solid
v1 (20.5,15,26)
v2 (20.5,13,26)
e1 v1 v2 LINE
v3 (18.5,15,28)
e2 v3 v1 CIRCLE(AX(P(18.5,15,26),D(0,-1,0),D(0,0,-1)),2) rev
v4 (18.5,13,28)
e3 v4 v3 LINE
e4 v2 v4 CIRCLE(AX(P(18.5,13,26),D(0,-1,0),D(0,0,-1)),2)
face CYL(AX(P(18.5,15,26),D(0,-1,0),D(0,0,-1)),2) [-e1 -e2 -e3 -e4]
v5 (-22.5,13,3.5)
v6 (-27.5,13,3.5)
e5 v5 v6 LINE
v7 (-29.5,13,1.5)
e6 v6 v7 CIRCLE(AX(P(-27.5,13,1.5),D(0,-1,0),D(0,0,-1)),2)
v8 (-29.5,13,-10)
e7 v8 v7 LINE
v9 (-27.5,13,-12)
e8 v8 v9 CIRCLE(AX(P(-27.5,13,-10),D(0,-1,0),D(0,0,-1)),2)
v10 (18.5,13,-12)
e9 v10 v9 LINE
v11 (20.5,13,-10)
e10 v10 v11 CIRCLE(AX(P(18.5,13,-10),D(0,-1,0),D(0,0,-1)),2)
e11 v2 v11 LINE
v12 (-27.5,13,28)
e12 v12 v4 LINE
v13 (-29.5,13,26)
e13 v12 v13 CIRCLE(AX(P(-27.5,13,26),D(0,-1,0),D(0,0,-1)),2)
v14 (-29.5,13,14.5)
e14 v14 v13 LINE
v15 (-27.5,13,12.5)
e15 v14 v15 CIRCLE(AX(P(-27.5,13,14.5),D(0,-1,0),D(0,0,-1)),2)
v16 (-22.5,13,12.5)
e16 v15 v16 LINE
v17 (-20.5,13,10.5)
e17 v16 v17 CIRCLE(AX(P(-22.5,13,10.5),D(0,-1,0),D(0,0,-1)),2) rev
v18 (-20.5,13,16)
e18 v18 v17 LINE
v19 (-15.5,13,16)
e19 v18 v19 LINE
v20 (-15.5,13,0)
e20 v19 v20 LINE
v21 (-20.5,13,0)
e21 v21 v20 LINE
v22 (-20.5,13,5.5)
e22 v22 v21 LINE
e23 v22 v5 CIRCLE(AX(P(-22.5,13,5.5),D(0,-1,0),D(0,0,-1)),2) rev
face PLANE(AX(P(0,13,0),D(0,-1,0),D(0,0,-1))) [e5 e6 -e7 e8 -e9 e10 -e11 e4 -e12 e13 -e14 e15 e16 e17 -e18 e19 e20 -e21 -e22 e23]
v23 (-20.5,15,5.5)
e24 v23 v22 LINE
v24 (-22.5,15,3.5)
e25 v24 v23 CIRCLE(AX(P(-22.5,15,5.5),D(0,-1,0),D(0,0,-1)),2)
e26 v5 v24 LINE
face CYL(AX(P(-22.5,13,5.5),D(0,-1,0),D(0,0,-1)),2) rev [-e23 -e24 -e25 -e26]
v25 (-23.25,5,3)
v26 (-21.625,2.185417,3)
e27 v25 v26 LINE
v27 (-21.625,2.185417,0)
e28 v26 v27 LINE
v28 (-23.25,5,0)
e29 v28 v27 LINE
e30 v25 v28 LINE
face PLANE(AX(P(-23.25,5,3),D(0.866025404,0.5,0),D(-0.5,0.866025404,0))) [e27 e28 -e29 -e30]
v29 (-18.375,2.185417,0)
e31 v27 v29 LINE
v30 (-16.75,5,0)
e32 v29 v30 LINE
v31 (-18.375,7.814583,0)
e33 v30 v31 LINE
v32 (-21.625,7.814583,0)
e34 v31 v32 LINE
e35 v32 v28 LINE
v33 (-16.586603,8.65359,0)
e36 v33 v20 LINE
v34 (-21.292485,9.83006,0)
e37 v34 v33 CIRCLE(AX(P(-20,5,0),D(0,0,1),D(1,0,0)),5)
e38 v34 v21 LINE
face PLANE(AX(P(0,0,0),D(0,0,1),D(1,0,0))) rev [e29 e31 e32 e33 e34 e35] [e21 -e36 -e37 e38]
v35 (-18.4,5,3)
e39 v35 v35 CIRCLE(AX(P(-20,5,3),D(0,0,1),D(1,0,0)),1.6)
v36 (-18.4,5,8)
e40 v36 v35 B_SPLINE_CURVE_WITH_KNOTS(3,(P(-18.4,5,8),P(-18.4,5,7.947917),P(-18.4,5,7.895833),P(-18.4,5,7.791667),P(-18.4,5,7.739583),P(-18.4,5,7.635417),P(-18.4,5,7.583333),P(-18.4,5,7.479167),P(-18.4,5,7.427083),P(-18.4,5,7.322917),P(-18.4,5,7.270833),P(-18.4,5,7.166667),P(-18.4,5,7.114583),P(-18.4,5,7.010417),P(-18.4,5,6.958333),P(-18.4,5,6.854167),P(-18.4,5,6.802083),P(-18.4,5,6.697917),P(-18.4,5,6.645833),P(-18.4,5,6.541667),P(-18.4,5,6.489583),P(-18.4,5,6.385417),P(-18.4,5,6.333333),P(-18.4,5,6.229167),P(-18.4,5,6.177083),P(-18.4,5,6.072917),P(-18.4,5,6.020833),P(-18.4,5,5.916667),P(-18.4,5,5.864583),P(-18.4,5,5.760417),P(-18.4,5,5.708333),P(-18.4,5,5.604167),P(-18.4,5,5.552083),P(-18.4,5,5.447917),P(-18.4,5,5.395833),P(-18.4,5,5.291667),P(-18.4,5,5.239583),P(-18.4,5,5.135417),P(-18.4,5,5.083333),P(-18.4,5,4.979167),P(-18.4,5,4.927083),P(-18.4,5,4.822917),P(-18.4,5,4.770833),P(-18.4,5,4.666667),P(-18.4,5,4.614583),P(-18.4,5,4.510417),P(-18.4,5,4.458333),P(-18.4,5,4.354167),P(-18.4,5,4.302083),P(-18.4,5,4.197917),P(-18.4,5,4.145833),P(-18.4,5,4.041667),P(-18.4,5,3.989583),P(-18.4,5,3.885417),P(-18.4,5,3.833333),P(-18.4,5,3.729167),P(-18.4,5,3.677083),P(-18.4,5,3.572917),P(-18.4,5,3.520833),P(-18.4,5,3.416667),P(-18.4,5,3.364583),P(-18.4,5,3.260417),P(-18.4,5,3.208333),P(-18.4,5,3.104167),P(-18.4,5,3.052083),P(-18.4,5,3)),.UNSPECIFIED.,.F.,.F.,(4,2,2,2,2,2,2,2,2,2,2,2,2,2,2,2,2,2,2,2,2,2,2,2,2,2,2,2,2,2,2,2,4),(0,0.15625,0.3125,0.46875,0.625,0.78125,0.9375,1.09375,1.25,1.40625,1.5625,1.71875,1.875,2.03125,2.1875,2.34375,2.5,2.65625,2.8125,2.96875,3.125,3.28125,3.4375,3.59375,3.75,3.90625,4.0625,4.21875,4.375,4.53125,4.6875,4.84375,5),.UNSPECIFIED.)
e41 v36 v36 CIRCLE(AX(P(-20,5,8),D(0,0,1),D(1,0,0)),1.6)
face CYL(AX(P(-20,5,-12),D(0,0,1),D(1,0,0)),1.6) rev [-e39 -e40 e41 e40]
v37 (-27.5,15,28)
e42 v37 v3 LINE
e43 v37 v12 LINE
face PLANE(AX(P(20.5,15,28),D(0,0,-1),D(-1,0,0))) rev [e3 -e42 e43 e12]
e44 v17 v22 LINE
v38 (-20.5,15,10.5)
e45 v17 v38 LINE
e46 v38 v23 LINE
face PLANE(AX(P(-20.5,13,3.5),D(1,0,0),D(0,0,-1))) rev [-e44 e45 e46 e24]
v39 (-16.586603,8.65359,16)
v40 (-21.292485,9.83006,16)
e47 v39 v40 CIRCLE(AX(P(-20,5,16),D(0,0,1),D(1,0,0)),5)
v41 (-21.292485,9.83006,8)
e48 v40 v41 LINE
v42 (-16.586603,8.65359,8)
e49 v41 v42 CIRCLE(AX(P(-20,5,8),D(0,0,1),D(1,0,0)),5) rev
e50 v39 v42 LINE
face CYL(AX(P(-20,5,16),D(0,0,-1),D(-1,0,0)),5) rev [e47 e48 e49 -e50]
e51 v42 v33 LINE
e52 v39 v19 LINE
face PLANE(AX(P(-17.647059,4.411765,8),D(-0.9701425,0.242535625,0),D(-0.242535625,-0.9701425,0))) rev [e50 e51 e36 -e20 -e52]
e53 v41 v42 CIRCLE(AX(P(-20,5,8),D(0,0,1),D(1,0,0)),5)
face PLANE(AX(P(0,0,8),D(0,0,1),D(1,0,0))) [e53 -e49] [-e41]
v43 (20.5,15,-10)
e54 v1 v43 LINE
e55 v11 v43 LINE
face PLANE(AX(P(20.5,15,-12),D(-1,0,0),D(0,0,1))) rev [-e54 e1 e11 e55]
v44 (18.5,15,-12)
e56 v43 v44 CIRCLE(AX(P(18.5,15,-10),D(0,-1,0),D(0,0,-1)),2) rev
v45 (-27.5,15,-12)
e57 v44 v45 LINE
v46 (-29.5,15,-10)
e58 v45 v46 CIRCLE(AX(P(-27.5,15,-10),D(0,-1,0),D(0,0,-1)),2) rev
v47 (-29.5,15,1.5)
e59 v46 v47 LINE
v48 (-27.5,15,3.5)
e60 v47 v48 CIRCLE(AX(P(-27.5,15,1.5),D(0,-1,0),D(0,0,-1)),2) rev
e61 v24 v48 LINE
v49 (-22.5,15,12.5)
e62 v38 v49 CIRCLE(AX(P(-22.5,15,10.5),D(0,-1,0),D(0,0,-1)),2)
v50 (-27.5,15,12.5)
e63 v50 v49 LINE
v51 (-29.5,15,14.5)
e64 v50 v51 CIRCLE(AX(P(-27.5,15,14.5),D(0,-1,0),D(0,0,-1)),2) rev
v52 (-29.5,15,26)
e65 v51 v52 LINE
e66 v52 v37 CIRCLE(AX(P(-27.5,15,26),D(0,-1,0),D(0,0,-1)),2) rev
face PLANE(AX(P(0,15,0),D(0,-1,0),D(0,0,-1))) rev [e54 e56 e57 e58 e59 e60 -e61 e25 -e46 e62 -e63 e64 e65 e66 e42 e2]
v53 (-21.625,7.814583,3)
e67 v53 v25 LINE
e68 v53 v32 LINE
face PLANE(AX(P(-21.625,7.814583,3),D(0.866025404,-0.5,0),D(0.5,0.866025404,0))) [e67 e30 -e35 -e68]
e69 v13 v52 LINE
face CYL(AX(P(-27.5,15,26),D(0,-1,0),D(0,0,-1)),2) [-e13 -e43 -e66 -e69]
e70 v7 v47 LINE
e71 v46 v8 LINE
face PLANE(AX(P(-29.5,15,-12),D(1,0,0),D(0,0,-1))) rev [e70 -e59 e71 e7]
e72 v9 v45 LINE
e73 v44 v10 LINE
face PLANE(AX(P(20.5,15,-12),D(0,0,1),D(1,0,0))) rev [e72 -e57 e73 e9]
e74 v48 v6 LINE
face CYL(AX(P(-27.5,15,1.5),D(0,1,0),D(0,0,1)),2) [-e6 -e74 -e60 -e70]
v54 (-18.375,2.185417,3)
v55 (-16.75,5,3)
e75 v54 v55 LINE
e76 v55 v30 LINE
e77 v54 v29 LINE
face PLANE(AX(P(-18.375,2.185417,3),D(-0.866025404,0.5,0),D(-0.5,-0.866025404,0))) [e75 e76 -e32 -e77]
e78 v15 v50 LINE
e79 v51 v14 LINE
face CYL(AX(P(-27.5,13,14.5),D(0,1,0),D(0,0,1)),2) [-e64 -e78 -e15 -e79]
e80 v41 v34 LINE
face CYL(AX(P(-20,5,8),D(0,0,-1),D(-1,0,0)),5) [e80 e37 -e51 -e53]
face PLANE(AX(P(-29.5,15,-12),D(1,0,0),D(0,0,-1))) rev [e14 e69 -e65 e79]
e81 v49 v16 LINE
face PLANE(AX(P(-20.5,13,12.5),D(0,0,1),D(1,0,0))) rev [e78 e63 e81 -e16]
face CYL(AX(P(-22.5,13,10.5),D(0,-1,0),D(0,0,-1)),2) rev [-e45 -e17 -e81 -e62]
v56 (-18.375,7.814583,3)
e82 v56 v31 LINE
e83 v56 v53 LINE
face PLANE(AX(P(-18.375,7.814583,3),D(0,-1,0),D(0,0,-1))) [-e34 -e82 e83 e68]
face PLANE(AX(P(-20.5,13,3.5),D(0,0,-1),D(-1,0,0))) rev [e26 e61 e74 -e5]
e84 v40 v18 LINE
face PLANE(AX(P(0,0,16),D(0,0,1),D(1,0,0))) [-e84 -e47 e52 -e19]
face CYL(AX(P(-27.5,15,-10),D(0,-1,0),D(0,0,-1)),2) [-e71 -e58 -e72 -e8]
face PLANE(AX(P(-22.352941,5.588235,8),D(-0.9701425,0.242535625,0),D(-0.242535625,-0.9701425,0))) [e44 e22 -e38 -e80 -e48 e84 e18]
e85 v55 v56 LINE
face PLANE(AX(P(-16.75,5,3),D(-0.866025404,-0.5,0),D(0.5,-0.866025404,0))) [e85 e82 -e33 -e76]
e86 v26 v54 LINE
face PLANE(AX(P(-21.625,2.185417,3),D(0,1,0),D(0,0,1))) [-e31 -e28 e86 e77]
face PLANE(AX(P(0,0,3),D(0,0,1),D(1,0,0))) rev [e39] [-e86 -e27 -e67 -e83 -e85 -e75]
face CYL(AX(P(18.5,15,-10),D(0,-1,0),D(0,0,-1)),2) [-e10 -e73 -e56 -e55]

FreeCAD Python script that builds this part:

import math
import FreeCAD as App
import Part
import Sketcher
Q = App.Units.Quantity


def edges_at(feature, points):
    """Names of the edges that pass closest to the given points."""
    edges = feature.Shape.Edges
    near = lambda p: min(range(len(edges)), key=lambda i: edges[i].distToShape(Part.Vertex(*p))[0])
    return sorted({f"Edge{near(p) + 1}" for p in points})

doc = App.newDocument("Part")
body = doc.addObject("PartDesign::Body", "Body")

sketch1 = doc.addObject("Sketcher::SketchObject", "Sketch")
body.addObject(sketch1)
sketch1.AttachmentSupport = (doc.XY_Plane, [""])
sketch1.MapMode = "FlatFace"
sketch1.addGeometry([
    Part.ArcOfCircle(Part.Circle(App.Vector(-20, 5, 0), App.Vector(0, 0, 1), 5), math.radians(104.980897), math.radians(406.946616)),
    Part.LineSegment(App.Vector(-16.586603, 8.65359, 0), App.Vector(-15.5, 13, 0)),
    Part.LineSegment(App.Vector(-15.5, 13, 0), App.Vector(-20.5, 13, 0)),
    Part.LineSegment(App.Vector(-20.5, 13, 0), App.Vector(-21.292485, 9.83006, 0)),
], False)
sketch1.addConstraint([
    Sketcher.Constraint("Coincident", 0, 2, 1, 1),
    Sketcher.Constraint("Coincident", 1, 2, 2, 1),
    Sketcher.Constraint("Coincident", 2, 2, 3, 1),
    Sketcher.Constraint("Coincident", 3, 2, 0, 1),
    Sketcher.Constraint("Horizontal", 2),
    Sketcher.Constraint("Parallel", 1, 3),
    Sketcher.Constraint("Radius", 0, 5.0),
    Sketcher.Constraint("DistanceX", 2, 2, 2, 1, 5.0),
    Sketcher.Constraint("DistanceX", 0, 3, -1, 1, 20.0),
    Sketcher.Constraint("DistanceY", -1, 1, 0, 3, 5.0),
    Sketcher.Constraint("DistanceY", -1, 1, 1, 2, 13.0),
    Sketcher.Constraint("DistanceX", 1, 2, -1, 1, 15.5),
    Sketcher.Constraint("Distance", 3, 3.267499),
])
pad1 = doc.addObject("PartDesign::Pad", "Pad")
body.addObject(pad1)
pad1.Profile = sketch1
pad1.Length = 8

sketch2 = doc.addObject("Sketcher::SketchObject", "Sketch001")
body.addObject(sketch2)
sketch2.AttachmentSupport = (doc.XZ_Plane, [""])
sketch2.MapMode = "FlatFace"
sketch2.AttachmentOffset = App.Placement(App.Vector(0, 0, -13), App.Rotation())
sketch2.addGeometry([
    Part.LineSegment(App.Vector(-29.5, -12, 0), App.Vector(-29.5, 28, 0)),
    Part.LineSegment(App.Vector(-29.5, 28, 0), App.Vector(20.5, 28, 0)),
    Part.LineSegment(App.Vector(20.5, 28, 0), App.Vector(20.5, -12, 0)),
    Part.LineSegment(App.Vector(20.5, -12, 0), App.Vector(-29.5, -12, 0)),
], False)
sketch2.addConstraint([
    Sketcher.Constraint("Coincident", 0, 2, 1, 1),
    Sketcher.Constraint("Coincident", 1, 2, 2, 1),
    Sketcher.Constraint("Coincident", 2, 2, 3, 1),
    Sketcher.Constraint("Coincident", 3, 2, 0, 1),
    Sketcher.Constraint("Vertical", 0),
    Sketcher.Constraint("Horizontal", 1),
    Sketcher.Constraint("Vertical", 2),
    Sketcher.Constraint("Horizontal", 3),
    Sketcher.Constraint("DistanceX", 1, 1, 1, 2, 50.0),
    Sketcher.Constraint("DistanceY", 0, 1, 0, 2, 40.0),
    Sketcher.Constraint("DistanceY", -1, 1, 0, 2, 28.0),
    Sketcher.Constraint("DistanceX", 0, 2, -1, 1, 29.5),
])
pad2 = doc.addObject("PartDesign::Pad", "Pad001")
body.addObject(pad2)
pad2.Profile = sketch2
pad2.Length = 2
pad2.Reversed = True
doc.recompute()

fillet = doc.addObject("PartDesign::Fillet", "Fillet")
body.addObject(fillet)
fillet.Base = (pad2, edges_at(pad2, [
    (-29.5, 14, -12),
    (-29.5, 14, 28),
    (20.5, 14, 28),
    (20.5, 14, -12),
]))
fillet.Radius = 2

sketch3 = doc.addObject("Sketcher::SketchObject", "Sketch002")
body.addObject(sketch3)
sketch3.AttachmentSupport = (doc.XY_Plane, [""])
sketch3.MapMode = "FlatFace"
sketch3.addGeometry([
    Part.LineSegment(App.Vector(-21.625, 7.814583, 0), App.Vector(-23.25, 5, 0)),
    Part.LineSegment(App.Vector(-23.25, 5, 0), App.Vector(-21.625, 2.185417, 0)),
    Part.LineSegment(App.Vector(-21.625, 2.185417, 0), App.Vector(-18.375, 2.185417, 0)),
    Part.LineSegment(App.Vector(-18.375, 2.185417, 0), App.Vector(-16.75, 5, 0)),
    Part.LineSegment(App.Vector(-16.75, 5, 0), App.Vector(-18.375, 7.814583, 0)),
    Part.LineSegment(App.Vector(-18.375, 7.814583, 0), App.Vector(-21.625, 7.814583, 0)),
], False)
sketch3.addConstraint([
    Sketcher.Constraint("Coincident", 0, 2, 1, 1),
    Sketcher.Constraint("Coincident", 1, 2, 2, 1),
    Sketcher.Constraint("Coincident", 2, 2, 3, 1),
    Sketcher.Constraint("Coincident", 3, 2, 4, 1),
    Sketcher.Constraint("Coincident", 4, 2, 5, 1),
    Sketcher.Constraint("Coincident", 5, 2, 0, 1),
    Sketcher.Constraint("Horizontal", 2),
    Sketcher.Constraint("Horizontal", 5),
    Sketcher.Constraint("Parallel", 0, 3),
    Sketcher.Constraint("Parallel", 1, 4),
    Sketcher.Constraint("Horizontal", 0, 2, 3, 2),
    Sketcher.Constraint("Vertical", 2, 2, 4, 2),
    Sketcher.Constraint("Vertical", 1, 2, 5, 2),
    Sketcher.Constraint("Angle", 0, Q("-120 deg")),
    Sketcher.Constraint("DistanceY", -1, 1, 0, 2, 5.0),
    Sketcher.Constraint("DistanceX", 2, 1, 2, 2, 3.25),
    Sketcher.Constraint("DistanceX", 0, 2, 3, 2, 6.5),
    Sketcher.Constraint("DistanceX", 0, 2, -1, 1, 23.25),
])
pocket1 = doc.addObject("PartDesign::Pocket", "Pocket")
body.addObject(pocket1)
pocket1.Profile = sketch3
pocket1.Length = 3
pocket1.Reversed = True

sketch4 = doc.addObject("Sketcher::SketchObject", "Sketch003")
body.addObject(sketch4)
sketch4.AttachmentSupport = (doc.XY_Plane, [""])
sketch4.MapMode = "FlatFace"
sketch4.addGeometry(Part.Circle(App.Vector(-20, 5, 0), App.Vector(0, 0, 1), 1.6), False)
sketch4.addConstraint([
    Sketcher.Constraint("Diameter", 0, 3.2),
    Sketcher.Constraint("DistanceX", 0, 3, -1, 1, 20.0),
    Sketcher.Constraint("DistanceY", -1, 1, 0, 3, 5.0),
])
pocket2 = doc.addObject("PartDesign::Pocket", "Pocket001")
body.addObject(pocket2)
pocket2.Profile = sketch4
pocket2.Type = "ThroughAll"
pocket2.Midplane = True

sketch5 = doc.addObject("Sketcher::SketchObject", "Sketch004")
body.addObject(sketch5)
sketch5.AttachmentSupport = (doc.XZ_Plane, [""])
sketch5.MapMode = "FlatFace"
sketch5.AttachmentOffset = App.Placement(App.Vector(0, 0, -15), App.Rotation())
sketch5.addGeometry([
    Part.LineSegment(App.Vector(-29.5, 3.5, 0), App.Vector(-29.5, 12.5, 0)),
    Part.LineSegment(App.Vector(-29.5, 12.5, 0), App.Vector(-20.5, 12.5, 0)),
    Part.LineSegment(App.Vector(-20.5, 12.5, 0), App.Vector(-20.5, 3.5, 0)),
    Part.LineSegment(App.Vector(-20.5, 3.5, 0), App.Vector(-29.5, 3.5, 0)),
], False)
sketch5.addConstraint([
    Sketcher.Constraint("Coincident", 0, 2, 1, 1),
    Sketcher.Constraint("Coincident", 1, 2, 2, 1),
    Sketcher.Constraint("Coincident", 2, 2, 3, 1),
    Sketcher.Constraint("Coincident", 3, 2, 0, 1),
    Sketcher.Constraint("Vertical", 0),
    Sketcher.Constraint("Horizontal", 1),
    Sketcher.Constraint("Vertical", 2),
    Sketcher.Constraint("Horizontal", 3),
    Sketcher.Constraint("Equal", 3, 0),
    Sketcher.Constraint("DistanceX", 1, 1, 1, 2, 9.0),
    Sketcher.Constraint("DistanceX", 0, 2, -1, 1, 29.5),
    Sketcher.Constraint("DistanceY", -1, 1, 0, 2, 12.5),
])
pocket3 = doc.addObject("PartDesign::Pocket", "Pocket002")
body.addObject(pocket3)
pocket3.Profile = sketch5
pocket3.Length = 2
pocket3.Reversed = True
doc.recompute()

fillet2 = doc.addObject("PartDesign::Fillet", "Fillet001")
body.addObject(fillet2)
fillet2.Base = (pocket3, edges_at(pocket3, [
    (-29.5, 14, 12.5),
    (-29.5, 14, 3.5),
    (-20.5, 14, 3.5),
    (-20.5, 14, 12.5),
]))
fillet2.Radius = 2

sketch6 = doc.addObject("Sketcher::SketchObject", "Sketch005")
body.addObject(sketch6)
sketch6.AttachmentSupport = (doc.XY_Plane, [""])
sketch6.MapMode = "FlatFace"
sketch6.addGeometry([
    Part.ArcOfCircle(Part.Circle(App.Vector(-20, 5, 0), App.Vector(0, 0, 1), 5), math.radians(46.946616), math.radians(104.980897)),
    Part.LineSegment(App.Vector(-16.586603, 8.65359, 0), App.Vector(-15.5, 13, 0)),
    Part.LineSegment(App.Vector(-15.5, 13, 0), App.Vector(-20.5, 13, 0)),
    Part.LineSegment(App.Vector(-20.5, 13, 0), App.Vector(-21.292485, 9.83006, 0)),
], False)
sketch6.addConstraint([
    Sketcher.Constraint("Coincident", 0, 1, 1, 1),
    Sketcher.Constraint("Coincident", 1, 2, 2, 1),
    Sketcher.Constraint("Coincident", 2, 2, 3, 1),
    Sketcher.Constraint("Coincident", 3, 2, 0, 2),
    Sketcher.Constraint("Horizontal", 2),
    Sketcher.Constraint("Parallel", 1, 3),
    Sketcher.Constraint("Radius", 0, 5.0),
    Sketcher.Constraint("DistanceX", 2, 2, 2, 1, 5.0),
    Sketcher.Constraint("DistanceX", 0, 3, -1, 1, 20.0),
    Sketcher.Constraint("DistanceY", -1, 1, 0, 3, 5.0),
    Sketcher.Constraint("DistanceY", -1, 1, 1, 2, 13.0),
    Sketcher.Constraint("DistanceX", 1, 2, -1, 1, 15.5),
    Sketcher.Constraint("Distance", 3, 3.267499),
])
pad3 = doc.addObject("PartDesign::Pad", "Pad002")
body.addObject(pad3)
pad3.Profile = sketch6
pad3.Length = 16

doc.recompute()
